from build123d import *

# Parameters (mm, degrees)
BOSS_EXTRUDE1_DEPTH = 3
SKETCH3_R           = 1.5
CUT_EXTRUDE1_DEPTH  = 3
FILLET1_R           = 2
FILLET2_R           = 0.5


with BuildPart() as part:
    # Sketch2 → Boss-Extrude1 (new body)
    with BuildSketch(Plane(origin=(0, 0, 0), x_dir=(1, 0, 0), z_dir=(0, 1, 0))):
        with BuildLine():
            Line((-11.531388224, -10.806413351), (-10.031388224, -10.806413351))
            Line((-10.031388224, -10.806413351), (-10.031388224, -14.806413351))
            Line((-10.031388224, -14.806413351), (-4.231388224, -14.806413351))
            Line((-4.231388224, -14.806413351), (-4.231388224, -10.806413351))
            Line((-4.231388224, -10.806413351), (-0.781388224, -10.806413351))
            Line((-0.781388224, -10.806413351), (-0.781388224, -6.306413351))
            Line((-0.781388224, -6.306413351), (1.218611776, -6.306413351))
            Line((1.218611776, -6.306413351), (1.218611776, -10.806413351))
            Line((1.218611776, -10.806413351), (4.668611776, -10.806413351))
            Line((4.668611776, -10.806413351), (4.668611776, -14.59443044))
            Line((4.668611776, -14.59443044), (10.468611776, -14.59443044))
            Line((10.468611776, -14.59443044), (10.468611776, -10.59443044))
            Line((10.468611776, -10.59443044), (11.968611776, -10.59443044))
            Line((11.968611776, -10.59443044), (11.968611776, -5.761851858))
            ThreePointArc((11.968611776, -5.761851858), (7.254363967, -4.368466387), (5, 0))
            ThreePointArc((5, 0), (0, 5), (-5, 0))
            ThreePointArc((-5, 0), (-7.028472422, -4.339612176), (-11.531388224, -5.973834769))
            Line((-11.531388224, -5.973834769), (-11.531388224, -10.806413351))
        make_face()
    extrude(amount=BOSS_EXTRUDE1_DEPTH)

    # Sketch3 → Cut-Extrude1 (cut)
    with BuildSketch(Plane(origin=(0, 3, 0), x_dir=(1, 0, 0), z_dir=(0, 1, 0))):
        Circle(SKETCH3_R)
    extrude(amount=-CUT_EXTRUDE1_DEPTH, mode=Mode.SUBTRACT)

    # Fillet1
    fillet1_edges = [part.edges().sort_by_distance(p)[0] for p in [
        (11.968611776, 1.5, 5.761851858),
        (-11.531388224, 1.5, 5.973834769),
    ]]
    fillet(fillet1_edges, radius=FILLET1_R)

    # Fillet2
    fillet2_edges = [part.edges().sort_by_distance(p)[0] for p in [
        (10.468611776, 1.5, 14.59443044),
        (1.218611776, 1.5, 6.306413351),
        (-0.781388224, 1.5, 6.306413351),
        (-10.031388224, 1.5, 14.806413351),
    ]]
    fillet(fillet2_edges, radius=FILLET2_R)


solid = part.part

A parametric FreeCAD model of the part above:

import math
import FreeCAD as App
import Part
import Sketcher

V = App.Vector
Q = App.Units.Quantity


def edges_at(feature, points):
    """Names of the edges that pass closest to the given points."""
    edges = feature.Shape.Edges
    near = lambda p: min(range(len(edges)), key=lambda i: edges[i].distToShape(Part.Vertex(*p))[0])
    return sorted({f"Edge{near(p) + 1}" for p in points})

doc = App.newDocument("Part")
body = doc.addObject("PartDesign::Body", "Body")

# Sketch on XZ plane
sketch1 = body.newObject("Sketcher::SketchObject", "Sketch")
sketch1.AttachmentSupport = (doc.getObject("XZ_Plane"), [""])
sketch1.MapMode = "FlatFace"
sketch1.addGeometry([
    Part.LineSegment(V(-11.531388, 10.806413, 0), V(-10.031388, 10.806413, 0)),  # 0
    Part.LineSegment(V(-10.031388, 10.806413, 0), V(-10.031388, 14.806413, 0)),  # 1
    Part.LineSegment(V(-10.031388, 14.806413, 0), V(-4.231388, 14.806413, 0)),  # 2
    Part.LineSegment(V(-4.231388, 14.806413, 0), V(-4.231388, 10.806413, 0)),  # 3
    Part.LineSegment(V(-4.231388, 10.806413, 0), V(-0.781388, 10.806413, 0)),  # 4
    Part.LineSegment(V(-0.781388, 10.806413, 0), V(-0.781388, 6.306413, 0)),  # 5
    Part.LineSegment(V(-0.781388, 6.306413, 0), V(1.218612, 6.306413, 0)),  # 6
    Part.LineSegment(V(1.218612, 6.306413, 0), V(1.218612, 10.806413, 0)),  # 7
    Part.LineSegment(V(1.218612, 10.806413, 0), V(4.668612, 10.806413, 0)),  # 8
    Part.LineSegment(V(4.668612, 10.806413, 0), V(4.668612, 14.59443, 0)),  # 9
    Part.LineSegment(V(4.668612, 14.59443, 0), V(10.468612, 14.59443, 0)),  # 10
    Part.LineSegment(V(10.468612, 14.59443, 0), V(10.468612, 10.59443, 0)),  # 11
    Part.LineSegment(V(10.468612, 10.59443, 0), V(11.968612, 10.59443, 0)),  # 12
    Part.LineSegment(V(11.968612, 10.59443, 0), V(11.968612, 5.761852, 0)),  # 13
    Part.ArcOfCircle(Part.Circle(V(11.24337, -0.455995, 0), V(0, 0, 1), 6.26), math.radians(83.347154), math.radians(175.82272)),  # 14
    Part.ArcOfCircle(Part.Circle(V(0, 0, 0), V(0, 0, 1), 5), math.radians(180), math.radians(360)),  # 15
    Part.ArcOfCircle(Part.Circle(V(-11.252611, -0.278777, 0), V(0, 0, 1), 6.258823), math.radians(2.552879), math.radians(92.552879)),  # 16
    Part.LineSegment(V(-11.531388, 5.973835, 0), V(-11.531388, 10.806413, 0)),  # 17
], False)
sketch1.addConstraint([
    Sketcher.Constraint("Coincident", 0, 2, 1, 1),
    Sketcher.Constraint("Coincident", 1, 2, 2, 1),
    Sketcher.Constraint("Coincident", 2, 2, 3, 1),
    Sketcher.Constraint("Coincident", 3, 2, 4, 1),
    Sketcher.Constraint("Coincident", 4, 2, 5, 1),
    Sketcher.Constraint("Coincident", 5, 2, 6, 1),
    Sketcher.Constraint("Coincident", 6, 2, 7, 1),
    Sketcher.Constraint("Coincident", 7, 2, 8, 1),
    Sketcher.Constraint("Coincident", 8, 2, 9, 1),
    Sketcher.Constraint("Coincident", 9, 2, 10, 1),
    Sketcher.Constraint("Coincident", 10, 2, 11, 1),
    Sketcher.Constraint("Coincident", 11, 2, 12, 1),
    Sketcher.Constraint("Coincident", 12, 2, 13, 1),
    Sketcher.Constraint("Coincident", 13, 2, 14, 1),
    Sketcher.Constraint("Coincident", 14, 2, 15, 2),
    Sketcher.Constraint("Coincident", 15, 1, 16, 1),
    Sketcher.Constraint("Coincident", 16, 2, 17, 1),
    Sketcher.Constraint("Coincident", 17, 2, 0, 1),
    Sketcher.Constraint("Horizontal", 0),
    Sketcher.Constraint("Vertical", 1),
    Sketcher.Constraint("Horizontal", 2),
    Sketcher.Constraint("Vertical", 3),
    Sketcher.Constraint("Horizontal", 4),
    Sketcher.Constraint("Vertical", 5),
    Sketcher.Constraint("Horizontal", 6),
    Sketcher.Constraint("Vertical", 7),
    Sketcher.Constraint("Horizontal", 8),
    Sketcher.Constraint("Vertical", 9),
    Sketcher.Constraint("Horizontal", 10),
    Sketcher.Constraint("Vertical", 11),
    Sketcher.Constraint("Horizontal", 12),
    Sketcher.Constraint("Vertical", 13),
    Sketcher.Constraint("Vertical", 17),
    Sketcher.Constraint("Coincident", 15, 3, -1, 1),
    Sketcher.Constraint("PointOnObject", 14, 2, -1),
    Sketcher.Constraint("PointOnObject", 15, 1, -1),
    Sketcher.Constraint("Horizontal", 0, 2, 3, 2),
    Sketcher.Constraint("Horizontal", 4, 2, 7, 2),
    Sketcher.Constraint("Equal", 4, 8),
    Sketcher.Constraint("Equal", 2, 10),
    Sketcher.Constraint("Equal", 0, 12),
    Sketcher.Constraint("Equal", 3, 11),
    Sketcher.Constraint("Equal", 13, 17),
    Sketcher.Constraint("Radius", 15, Q("5 mm")),
    Sketcher.Constraint("DistanceX", 6, 1, 6, 2, Q("2 mm")),
    Sketcher.Constraint("DistanceY", 1, 1, 1, 2, Q("4 mm")),
    Sketcher.Constraint("Radius", 14, Q("6.26 mm")),
    Sketcher.Constraint("DistanceX", 0, 1, 0, 2, Q("1.5 mm")),
    Sketcher.Constraint("DistanceX", 2, 1, 2, 2, Q("5.8 mm")),
    Sketcher.Constraint("DistanceY", 5, 2, 5, 1, Q("4.5 mm")),
    Sketcher.Constraint("DistanceX", 4, 1, 4, 2, Q("3.45 mm")),
    Sketcher.Constraint("Radius", 16, Q("6.258823 mm")),
    Sketcher.Constraint("DistanceY", 13, 2, 13, 1, Q("4.832579 mm")),
    Sketcher.Constraint("DistanceY", 9, 1, 9, 2, Q("3.788017 mm")),
    Sketcher.Constraint("DistanceX", -1, 1, 14, 3, Q("11.24337 mm")),
    Sketcher.Constraint("DistanceX", 0, 2, -1, 1, Q("10.031388 mm")),
])
pad1 = body.newObject("PartDesign::Pad", "Pad")
pad1.Profile = sketch1
pad1.Length = 3
pad1.Reversed = True

# Sketch on XZ plane
sketch2 = body.newObject("Sketcher::SketchObject", "Sketch001")
sketch2.AttachmentSupport = (doc.getObject("XZ_Plane"), [""])
sketch2.MapMode = "FlatFace"
sketch2.AttachmentOffset = App.Placement(V(0, 0, -3), App.Rotation())
sketch2.addGeometry(Part.Circle(V(0, 0, 0), V(0, 0, 1), 1.5), False)
sketch2.addConstraint([
    Sketcher.Constraint("Coincident", 0, 3, -1, 1),
    Sketcher.Constraint("Diameter", 0, Q("3 mm")),
])
pocket1 = body.newObject("PartDesign::Pocket", "Pocket")
pocket1.Profile = sketch2
pocket1.Length = 3
pocket1.Reversed = True
doc.recompute()

fillet = body.newObject("PartDesign::Fillet", "Fillet")
fillet.Base = (pocket1, edges_at(pocket1, [(11.969, 1.5, 5.762), (-11.531, 1.5, 5.974)]))
fillet.Radius = 2
doc.recompute()

fillet2 = body.newObject("PartDesign::Fillet", "Fillet001")
fillet2.Base = (fillet, edges_at(fillet, [
    (10.469, 1.5, 14.594),
    (1.219, 1.5, 6.306),
    (-0.781, 1.5, 6.306),
    (-10.031, 1.5, 14.806),
]))
fillet2.Radius = 0.5

doc.recompute()
